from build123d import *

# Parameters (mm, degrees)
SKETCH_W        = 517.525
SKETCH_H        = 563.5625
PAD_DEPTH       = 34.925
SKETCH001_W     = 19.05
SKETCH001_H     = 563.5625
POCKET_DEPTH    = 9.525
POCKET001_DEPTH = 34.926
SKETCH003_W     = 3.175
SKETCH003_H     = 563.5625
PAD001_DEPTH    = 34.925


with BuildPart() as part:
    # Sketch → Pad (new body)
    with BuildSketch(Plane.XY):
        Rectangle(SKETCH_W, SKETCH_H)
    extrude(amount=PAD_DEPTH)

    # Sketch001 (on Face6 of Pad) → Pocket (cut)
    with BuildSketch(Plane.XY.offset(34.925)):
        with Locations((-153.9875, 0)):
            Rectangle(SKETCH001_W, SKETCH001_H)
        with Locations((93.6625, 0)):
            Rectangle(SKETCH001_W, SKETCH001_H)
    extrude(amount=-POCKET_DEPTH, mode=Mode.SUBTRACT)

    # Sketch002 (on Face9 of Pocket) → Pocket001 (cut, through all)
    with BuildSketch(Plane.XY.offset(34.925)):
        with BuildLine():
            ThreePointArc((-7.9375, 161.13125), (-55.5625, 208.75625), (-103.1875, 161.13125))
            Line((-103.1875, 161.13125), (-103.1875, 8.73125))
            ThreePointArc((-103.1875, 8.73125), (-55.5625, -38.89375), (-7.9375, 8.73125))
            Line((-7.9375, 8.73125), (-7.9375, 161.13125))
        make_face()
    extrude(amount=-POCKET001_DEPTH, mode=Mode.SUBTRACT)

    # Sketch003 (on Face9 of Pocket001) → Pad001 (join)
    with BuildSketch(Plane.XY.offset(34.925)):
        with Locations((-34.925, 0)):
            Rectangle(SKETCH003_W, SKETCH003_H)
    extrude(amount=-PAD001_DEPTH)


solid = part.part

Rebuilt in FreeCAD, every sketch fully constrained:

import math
import FreeCAD as App
import Part
import Sketcher
Q = App.Units.Quantity


def add_polygon(sketch, points):
    """Adds a closed chain of lines whose ends are joined by coincident constraints."""
    first, n = sketch.GeometryCount, len(points)
    for a, b in zip(points, points[1:] + points[:1]):
        sketch.addGeometry(Part.LineSegment(App.Vector(*a, 0), App.Vector(*b, 0)), False)
    for i in range(n):
        sketch.addConstraint(Sketcher.Constraint("Coincident", first + i, 2, first + (i + 1) % n, 1))

doc = App.newDocument("Part")
body = doc.addObject("PartDesign::Body", "Body")

# Sketch on XY plane
sketch1 = body.newObject("Sketcher::SketchObject", "Sketch")
sketch1.AttachmentSupport = (doc.getObject("XY_Plane"), [""])
sketch1.MapMode = "FlatFace"
add_polygon(sketch1, [(-258.7625, 281.78125), (-258.7625, -281.78125), (258.7625, -281.78125), (258.7625, 281.78125)])  # lines 0-3
sketch1.addConstraint(Sketcher.Constraint("Vertical", 0))
sketch1.addConstraint(Sketcher.Constraint("Horizontal", 1))
sketch1.addConstraint(Sketcher.Constraint("Vertical", 2))
sketch1.addConstraint(Sketcher.Constraint("Horizontal", 3))
sketch1.addConstraint(Sketcher.Constraint("Symmetric", 0, 2, 2, 2, -1, 1))
sketch1.addConstraint(Sketcher.Constraint("DistanceX", 1, 1, 1, 2, Q("20.375 in")))
sketch1.addConstraint(Sketcher.Constraint("DistanceY", 0, 2, 0, 1, Q("22.1875 in")))
pad1 = body.newObject("PartDesign::Pad", "Pad")
pad1.Profile = sketch1
pad1.Length = Q("1.375 in")

# Sketch on XY plane
sketch2 = body.newObject("Sketcher::SketchObject", "Sketch001")
sketch2.AttachmentSupport = (doc.getObject("XY_Plane"), [""])
sketch2.MapMode = "FlatFace"
sketch2.AttachmentOffset = App.Placement(App.Vector(0, 0, 1.375 * 25.4), App.Rotation())
add_polygon(sketch2, [(-163.5125, 281.78125), (-163.5125, -281.78125), (-144.4625, -281.78125), (-144.4625, 281.78125)])  # lines 0-3
add_polygon(sketch2, [(84.1375, 281.78125), (84.1375, -281.78125), (103.1875, -281.78125), (103.1875, 281.78125)])  # lines 4-7
sketch2.addConstraint(Sketcher.Constraint("Vertical", 0))
sketch2.addConstraint(Sketcher.Constraint("Horizontal", 1))
sketch2.addConstraint(Sketcher.Constraint("Vertical", 2))
sketch2.addConstraint(Sketcher.Constraint("Horizontal", 3))
sketch2.addConstraint(Sketcher.Constraint("Vertical", 4))
sketch2.addConstraint(Sketcher.Constraint("Horizontal", 5))
sketch2.addConstraint(Sketcher.Constraint("Vertical", 6))
sketch2.addConstraint(Sketcher.Constraint("Horizontal", 7))
sketch2.addConstraint(Sketcher.Constraint("Horizontal", 1, 2, 4, 2))
sketch2.addConstraint(Sketcher.Constraint("Horizontal", 3, 2, 6, 2))
sketch2.addConstraint(Sketcher.Constraint("Equal", 3, 5))
sketch2.addConstraint(Sketcher.Constraint("DistanceX", 1, 2, 4, 2, Q("9 in")))
sketch2.addConstraint(Sketcher.Constraint("DistanceX", 1, 1, 1, 2, Q("0.75 in")))
sketch2.addConstraint(Sketcher.Constraint("DistanceY", 0, 2, 0, 1, Q("22.1875 in")))
sketch2.addConstraint(Sketcher.Constraint("DistanceX", 0, 2, -1, 1, Q("6.4375 in")))
sketch2.addConstraint(Sketcher.Constraint("DistanceY", 0, 2, -1, 1, Q("11.09375 in")))
pocket1 = body.newObject("PartDesign::Pocket", "Pocket")
pocket1.Profile = sketch2
pocket1.Length = Q("0.375 in")

# Sketch on XY plane
sketch3 = body.newObject("Sketcher::SketchObject", "Sketch002")
sketch3.AttachmentSupport = (doc.getObject("XY_Plane"), [""])
sketch3.MapMode = "FlatFace"
sketch3.AttachmentOffset = App.Placement(App.Vector(0, 0, 1.375 * 25.4), App.Rotation())
sketch3.addGeometry(Part.ArcOfCircle(Part.Circle(App.Vector(-55.5625, 161.13125, 0), App.Vector(0, 0, 1), 47.625), math.radians(0), math.radians(180)), False)
sketch3.addGeometry(Part.LineSegment(App.Vector(-103.1875, 161.13125, 0), App.Vector(-103.1875, 8.73125, 0)), False)
sketch3.addGeometry(Part.ArcOfCircle(Part.Circle(App.Vector(-55.5625, 8.73125, 0), App.Vector(0, 0, 1), 47.625), math.radians(180), math.radians(360)), False)
sketch3.addGeometry(Part.LineSegment(App.Vector(-7.9375, 8.73125, 0), App.Vector(-7.9375, 161.13125, 0)), False)
sketch3.addConstraint(Sketcher.Constraint("Tangent", 0, 2, 1, 1))
sketch3.addConstraint(Sketcher.Constraint("Tangent", 1, 2, 2, 1))
sketch3.addConstraint(Sketcher.Constraint("Tangent", 2, 2, 3, 1))
sketch3.addConstraint(Sketcher.Constraint("Tangent", 3, 2, 0, 1))
sketch3.addConstraint(Sketcher.Constraint("Vertical", 1))
sketch3.addConstraint(Sketcher.Constraint("Vertical", 3))
sketch3.addConstraint(Sketcher.Constraint("DistanceY", 1, 2, 1, 1, Q("6 in")))
sketch3.addConstraint(Sketcher.Constraint("Radius", 0, Q("1.875 in")))
sketch3.addConstraint(Sketcher.Constraint("DistanceX", 0, 3, -1, 1, Q("2.1875 in")))
sketch3.addConstraint(Sketcher.Constraint("DistanceY", -1, 1, 0, 3, Q("6.34375 in")))
pocket2 = body.newObject("PartDesign::Pocket", "Pocket001")
pocket2.Profile = sketch3
pocket2.Type = "ThroughAll"

# Sketch on XY plane
sketch4 = body.newObject("Sketcher::SketchObject", "Sketch003")
sketch4.AttachmentSupport = (doc.getObject("XY_Plane"), [""])
sketch4.MapMode = "FlatFace"
sketch4.AttachmentOffset = App.Placement(App.Vector(0, 0, 1.375 * 25.4), App.Rotation())
add_polygon(sketch4, [(-36.5125, 281.78125), (-36.5125, -281.78125), (-33.3375, -281.78125), (-33.3375, 281.78125)])  # lines 0-3
sketch4.addConstraint(Sketcher.Constraint("Vertical", 0))
sketch4.addConstraint(Sketcher.Constraint("Horizontal", 1))
sketch4.addConstraint(Sketcher.Constraint("Vertical", 2))
sketch4.addConstraint(Sketcher.Constraint("Horizontal", 3))
sketch4.addConstraint(Sketcher.Constraint("DistanceX", 1, 1, 1, 2, Q("0.125 in")))
sketch4.addConstraint(Sketcher.Constraint("DistanceY", 0, 2, 0, 1, Q("22.1875 in")))
sketch4.addConstraint(Sketcher.Constraint("DistanceX", 0, 2, -1, 1, Q("1.4375 in")))
sketch4.addConstraint(Sketcher.Constraint("DistanceY", 0, 2, -1, 1, Q("11.09375 in")))
pad2 = body.newObject("PartDesign::Pad", "Pad001")
pad2.Profile = sketch4
pad2.Length = Q("1.375 in")
pad2.Reversed = True

doc.recompute()
